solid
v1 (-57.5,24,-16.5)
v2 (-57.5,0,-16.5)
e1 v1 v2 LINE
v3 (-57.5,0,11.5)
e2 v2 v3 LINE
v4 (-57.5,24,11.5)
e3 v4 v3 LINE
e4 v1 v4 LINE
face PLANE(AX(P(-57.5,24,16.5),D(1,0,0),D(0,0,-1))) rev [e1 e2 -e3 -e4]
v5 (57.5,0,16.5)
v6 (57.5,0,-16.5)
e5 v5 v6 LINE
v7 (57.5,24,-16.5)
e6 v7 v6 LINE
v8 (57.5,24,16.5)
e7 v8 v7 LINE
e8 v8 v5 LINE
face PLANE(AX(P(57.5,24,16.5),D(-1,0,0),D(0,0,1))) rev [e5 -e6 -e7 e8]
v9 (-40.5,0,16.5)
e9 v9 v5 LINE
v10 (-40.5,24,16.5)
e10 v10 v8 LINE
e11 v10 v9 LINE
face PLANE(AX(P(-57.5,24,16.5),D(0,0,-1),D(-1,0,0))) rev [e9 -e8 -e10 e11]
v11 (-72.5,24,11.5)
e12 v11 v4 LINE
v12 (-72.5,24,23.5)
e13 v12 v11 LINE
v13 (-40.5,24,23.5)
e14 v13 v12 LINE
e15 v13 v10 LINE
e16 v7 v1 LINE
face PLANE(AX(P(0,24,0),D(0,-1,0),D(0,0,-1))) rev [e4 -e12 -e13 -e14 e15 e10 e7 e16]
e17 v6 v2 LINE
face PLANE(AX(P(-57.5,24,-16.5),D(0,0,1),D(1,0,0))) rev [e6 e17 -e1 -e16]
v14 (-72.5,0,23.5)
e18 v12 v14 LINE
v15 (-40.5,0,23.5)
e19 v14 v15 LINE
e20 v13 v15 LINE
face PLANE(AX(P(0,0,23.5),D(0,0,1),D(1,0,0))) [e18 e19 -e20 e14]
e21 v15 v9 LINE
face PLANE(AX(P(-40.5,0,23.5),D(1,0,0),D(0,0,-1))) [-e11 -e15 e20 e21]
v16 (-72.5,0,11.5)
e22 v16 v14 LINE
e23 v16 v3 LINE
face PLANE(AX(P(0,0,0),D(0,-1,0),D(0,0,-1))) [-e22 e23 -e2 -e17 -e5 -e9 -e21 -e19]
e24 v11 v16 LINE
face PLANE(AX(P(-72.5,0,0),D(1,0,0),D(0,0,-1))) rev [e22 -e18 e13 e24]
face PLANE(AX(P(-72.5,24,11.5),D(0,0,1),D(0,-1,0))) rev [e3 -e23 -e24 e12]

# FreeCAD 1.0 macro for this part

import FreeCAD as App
import Part
import Sketcher
Q = App.Units.Quantity

doc = App.newDocument("Part")
body = doc.addObject("PartDesign::Body", "Body")

# Sketch on XZ plane
sketch1 = doc.addObject("Sketcher::SketchObject", "Sketch")
body.addObject(sketch1)
sketch1.AttachmentSupport = (doc.XZ_Plane, [""])
sketch1.MapMode = "FlatFace"
sketch1.addGeometry([
    Part.LineSegment(App.Vector(-58, -16, 0), App.Vector(-58, 16, 0)),
    Part.LineSegment(App.Vector(-58, 16, 0), App.Vector(58, 16, 0)),
    Part.LineSegment(App.Vector(58, 16, 0), App.Vector(58, -16, 0)),
    Part.LineSegment(App.Vector(58, -16, 0), App.Vector(-58, -16, 0)),
], False)
sketch1.addConstraint([
    Sketcher.Constraint("Coincident", 0, 2, 1, 1),
    Sketcher.Constraint("Coincident", 1, 2, 2, 1),
    Sketcher.Constraint("Coincident", 2, 2, 3, 1),
    Sketcher.Constraint("Coincident", 3, 2, 0, 1),
    Sketcher.Constraint("Vertical", 0),
    Sketcher.Constraint("Horizontal", 1),
    Sketcher.Constraint("Vertical", 2),
    Sketcher.Constraint("Horizontal", 3),
    Sketcher.Constraint("Symmetric", 0, 2, 2, 2, -1, 1),
    Sketcher.Constraint("DistanceX", 1, 1, 1, 2, Q("115 mm")),
    Sketcher.Constraint("DistanceY", 0, 1, 0, 2, Q("33 mm")),
])
pad1 = doc.addObject("PartDesign::Pad", "Pad")
body.addObject(pad1)
pad1.Profile = sketch1
pad1.Length = 24
pad1.Reversed = True

# Sketch on YZ plane
sketch2 = doc.addObject("Sketcher::SketchObject", "Sketch001")
body.addObject(sketch2)
sketch2.AttachmentSupport = (doc.YZ_Plane, [""])
sketch2.MapMode = "FlatFace"
sketch2.AttachmentOffset = App.Placement(App.Vector(0, 0, -57.5), App.Rotation())
sketch2.addGeometry([
    Part.LineSegment(App.Vector(24, 12, 0), App.Vector(0, 12, 0)),
    Part.LineSegment(App.Vector(0, 12, 0), App.Vector(0, 16, 0)),
    Part.LineSegment(App.Vector(0, 16, 0), App.Vector(24, 16, 0)),
    Part.LineSegment(App.Vector(24, 16, 0), App.Vector(24, 12, 0)),
], False)
sketch2.addConstraint([
    Sketcher.Constraint("Coincident", 0, 2, 1, 1),
    Sketcher.Constraint("Coincident", 1, 2, 2, 1),
    Sketcher.Constraint("Coincident", 2, 2, 3, 1),
    Sketcher.Constraint("Coincident", 3, 2, 0, 1),
    Sketcher.Constraint("Horizontal", 0),
    Sketcher.Constraint("Vertical", 1),
    Sketcher.Constraint("Horizontal", 2),
    Sketcher.Constraint("Vertical", 3),
    Sketcher.Constraint("PointOnObject", 0, 2, -2),
    Sketcher.Constraint("DistanceX", 0, 2, 0, 1, Q("24 mm")),
    Sketcher.Constraint("DistanceY", 1, 1, 1, 2, Q("5 mm")),
    Sketcher.Constraint("DistanceY", -1, 1, 0, 2, Q("11.5 mm")),
])
pad2 = doc.addObject("PartDesign::Pad", "Pad001")
body.addObject(pad2)
pad2.Profile = sketch2
pad2.Length = 15
pad2.Reversed = True

# Sketch on XY plane
sketch3 = doc.addObject("Sketcher::SketchObject", "Sketch002")
body.addObject(sketch3)
sketch3.AttachmentSupport = (doc.XY_Plane, [""])
sketch3.MapMode = "FlatFace"
sketch3.AttachmentOffset = App.Placement(App.Vector(0, 0, 16.5), App.Rotation())
sketch3.addGeometry([
    Part.LineSegment(App.Vector(-40, 0, 0), App.Vector(-40, 24, 0)),
    Part.LineSegment(App.Vector(-40, 24, 0), App.Vector(-72, 24, 0)),
    Part.LineSegment(App.Vector(-72, 24, 0), App.Vector(-72, 0, 0)),
    Part.LineSegment(App.Vector(-72, 0, 0), App.Vector(-40, 0, 0)),
], False)
sketch3.addConstraint([
    Sketcher.Constraint("Coincident", 0, 2, 1, 1),
    Sketcher.Constraint("Coincident", 1, 2, 2, 1),
    Sketcher.Constraint("Coincident", 2, 2, 3, 1),
    Sketcher.Constraint("Coincident", 3, 2, 0, 1),
    Sketcher.Constraint("Vertical", 0),
    Sketcher.Constraint("Horizontal", 1),
    Sketcher.Constraint("Vertical", 2),
    Sketcher.Constraint("Horizontal", 3),
    Sketcher.Constraint("PointOnObject", 2, 2, -1),
    Sketcher.Constraint("DistanceX", 1, 2, 1, 1, Q("32 mm")),
    Sketcher.Constraint("DistanceY", 0, 1, 0, 2, Q("24 mm")),
    Sketcher.Constraint("DistanceX", 0, 2, -1, 1, Q("40.5 mm")),
])
pad3 = doc.addObject("PartDesign::Pad", "Pad002")
body.addObject(pad3)
pad3.Profile = sketch3
pad3.Length = 7

doc.recompute()
